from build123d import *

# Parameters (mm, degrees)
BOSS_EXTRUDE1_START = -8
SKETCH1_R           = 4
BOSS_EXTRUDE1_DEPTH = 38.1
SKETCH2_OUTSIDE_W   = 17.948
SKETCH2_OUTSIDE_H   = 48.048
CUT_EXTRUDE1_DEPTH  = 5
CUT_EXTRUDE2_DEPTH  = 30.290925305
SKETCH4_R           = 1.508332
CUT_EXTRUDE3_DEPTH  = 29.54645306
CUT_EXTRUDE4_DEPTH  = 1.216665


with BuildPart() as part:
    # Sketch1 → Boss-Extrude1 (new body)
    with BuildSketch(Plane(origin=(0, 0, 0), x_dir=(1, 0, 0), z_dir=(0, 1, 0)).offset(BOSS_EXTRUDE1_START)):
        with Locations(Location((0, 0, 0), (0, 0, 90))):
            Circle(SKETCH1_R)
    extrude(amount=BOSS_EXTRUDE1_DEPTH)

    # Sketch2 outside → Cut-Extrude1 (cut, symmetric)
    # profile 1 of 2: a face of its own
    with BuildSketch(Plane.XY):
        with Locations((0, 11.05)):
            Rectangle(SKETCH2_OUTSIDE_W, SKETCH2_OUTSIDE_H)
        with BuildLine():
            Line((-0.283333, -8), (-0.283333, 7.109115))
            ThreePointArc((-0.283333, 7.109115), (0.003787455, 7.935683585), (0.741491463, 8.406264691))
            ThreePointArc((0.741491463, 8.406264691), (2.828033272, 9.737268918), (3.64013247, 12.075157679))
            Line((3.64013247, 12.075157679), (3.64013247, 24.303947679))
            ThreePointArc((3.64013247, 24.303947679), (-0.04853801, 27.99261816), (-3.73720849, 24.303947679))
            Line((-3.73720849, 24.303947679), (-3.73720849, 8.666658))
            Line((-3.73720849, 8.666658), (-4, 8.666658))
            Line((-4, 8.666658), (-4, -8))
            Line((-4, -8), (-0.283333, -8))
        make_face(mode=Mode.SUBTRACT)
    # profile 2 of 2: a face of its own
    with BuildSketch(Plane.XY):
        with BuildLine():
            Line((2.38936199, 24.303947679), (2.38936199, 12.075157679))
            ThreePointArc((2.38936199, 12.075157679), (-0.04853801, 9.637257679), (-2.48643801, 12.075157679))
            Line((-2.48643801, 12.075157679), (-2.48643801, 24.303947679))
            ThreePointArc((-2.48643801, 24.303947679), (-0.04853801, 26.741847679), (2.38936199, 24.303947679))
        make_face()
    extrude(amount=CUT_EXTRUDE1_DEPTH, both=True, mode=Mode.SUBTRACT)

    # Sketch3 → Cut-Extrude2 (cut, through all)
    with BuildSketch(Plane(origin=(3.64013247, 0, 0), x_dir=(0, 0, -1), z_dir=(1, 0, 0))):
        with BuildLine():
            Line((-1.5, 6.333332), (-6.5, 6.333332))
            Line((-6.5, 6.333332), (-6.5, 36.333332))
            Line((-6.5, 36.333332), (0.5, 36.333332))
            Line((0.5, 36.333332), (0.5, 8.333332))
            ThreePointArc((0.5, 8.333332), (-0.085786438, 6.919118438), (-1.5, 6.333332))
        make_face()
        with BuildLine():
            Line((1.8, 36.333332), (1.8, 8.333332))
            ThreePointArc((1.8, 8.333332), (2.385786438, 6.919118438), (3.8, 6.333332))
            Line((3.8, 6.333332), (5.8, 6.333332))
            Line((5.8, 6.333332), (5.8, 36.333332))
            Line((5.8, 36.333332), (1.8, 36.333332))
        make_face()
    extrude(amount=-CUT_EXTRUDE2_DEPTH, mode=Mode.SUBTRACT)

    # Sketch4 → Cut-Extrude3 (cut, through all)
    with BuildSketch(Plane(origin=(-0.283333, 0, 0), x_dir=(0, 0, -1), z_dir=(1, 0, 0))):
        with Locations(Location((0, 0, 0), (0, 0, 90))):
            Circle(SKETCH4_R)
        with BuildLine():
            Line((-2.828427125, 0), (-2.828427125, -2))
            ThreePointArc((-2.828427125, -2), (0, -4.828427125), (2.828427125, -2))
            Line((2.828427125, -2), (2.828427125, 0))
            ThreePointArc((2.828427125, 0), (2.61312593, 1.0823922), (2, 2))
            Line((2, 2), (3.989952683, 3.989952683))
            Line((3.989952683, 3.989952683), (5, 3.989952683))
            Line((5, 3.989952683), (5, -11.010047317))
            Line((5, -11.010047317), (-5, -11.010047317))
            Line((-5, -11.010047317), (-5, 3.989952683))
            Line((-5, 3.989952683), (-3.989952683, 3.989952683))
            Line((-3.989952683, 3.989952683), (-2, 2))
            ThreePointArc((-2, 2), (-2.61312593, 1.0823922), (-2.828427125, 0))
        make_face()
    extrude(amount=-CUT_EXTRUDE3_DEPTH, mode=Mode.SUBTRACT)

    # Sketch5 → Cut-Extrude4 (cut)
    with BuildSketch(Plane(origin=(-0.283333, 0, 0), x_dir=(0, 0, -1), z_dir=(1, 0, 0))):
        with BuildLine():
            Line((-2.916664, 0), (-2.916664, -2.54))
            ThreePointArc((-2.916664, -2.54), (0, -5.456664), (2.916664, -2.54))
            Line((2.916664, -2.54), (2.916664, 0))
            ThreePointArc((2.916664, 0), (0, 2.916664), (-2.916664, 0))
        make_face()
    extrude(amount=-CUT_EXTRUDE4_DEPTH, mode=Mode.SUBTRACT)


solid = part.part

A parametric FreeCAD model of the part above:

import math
import FreeCAD as App
import Part
import Sketcher

V = App.Vector

doc = App.newDocument("Part")
body = doc.addObject("PartDesign::Body", "Body")

sketch1 = doc.addObject("Sketcher::SketchObject", "Sketch")
body.addObject(sketch1)
sketch1.AttachmentSupport = (doc.XZ_Plane, [""])
sketch1.MapMode = "FlatFace"
sketch1.AttachmentOffset = App.Placement(V(0, 0, 8), App.Rotation())
sketch1.addGeometry(Part.Circle(V(0, 0, 0), V(0, 0, 1), 4), False)
sketch1.addConstraint([
    Sketcher.Constraint("Coincident", 0, 3, -1, 1),
    Sketcher.Constraint("Diameter", 0, 8.0),
])
pad1 = doc.addObject("PartDesign::Pad", "Pad")
body.addObject(pad1)
pad1.Profile = sketch1
pad1.Length = 38.1
pad1.Reversed = True

sketch2 = doc.addObject("Sketcher::SketchObject", "Sketch001")
body.addObject(sketch2)
sketch2.AttachmentSupport = (doc.XY_Plane, [""])
sketch2.MapMode = "FlatFace"
sketch2.addGeometry([
    Part.LineSegment(V(-8.974, 35.074, 0), V(-8.974, -12.974, 0)),
    Part.LineSegment(V(-8.974, -12.974, 0), V(8.974, -12.974, 0)),
    Part.LineSegment(V(8.974, -12.974, 0), V(8.974, 35.074, 0)),
    Part.LineSegment(V(8.974, 35.074, 0), V(-8.974, 35.074, 0)),
    Part.LineSegment(V(-0.283333, 7.109115, 0), V(-0.283333, -8, 0)),
    Part.LineSegment(V(-0.283333, -8, 0), V(-4, -8, 0)),
    Part.LineSegment(V(-4, -8, 0), V(-4, 8.666658, 0)),
    Part.LineSegment(V(-4, 8.666658, 0), V(-3.737208, 8.666658, 0)),
    Part.LineSegment(V(-3.737208, 8.666658, 0), V(-3.737208, 24.303948, 0)),
    Part.ArcOfCircle(Part.Circle(V(-0.048538, 24.303948, 0), V(0, 0, 1), 3.68867), math.radians(0), math.radians(180)),
    Part.LineSegment(V(3.640132, 24.303948, 0), V(3.640132, 12.075158, 0)),
    Part.ArcOfCircle(Part.Circle(V(-0.1311, 12.075158, 0), V(0, 0, 1), 3.771232), math.radians(-76.621616), math.radians(0)),
    Part.ArcOfCircle(Part.Circle(V(1.049999, 7.109115, 0), V(0, 0, 1), 1.333332), math.radians(103.378384), math.radians(180)),
    Part.LineSegment(V(2.389362, 12.075158, 0), V(2.389362, 24.303948, 0)),
    Part.ArcOfCircle(Part.Circle(V(-0.048538, 24.303948, 0), V(0, 0, 1), 2.4379), math.radians(0), math.radians(180)),
    Part.LineSegment(V(-2.486438, 24.303948, 0), V(-2.486438, 12.075158, 0)),
    Part.ArcOfCircle(Part.Circle(V(-0.048538, 12.075158, 0), V(0, 0, 1), 2.4379), math.radians(180), math.radians(360)),
], False)
sketch2.addConstraint([
    Sketcher.Constraint("Coincident", 0, 2, 1, 1),
    Sketcher.Constraint("Coincident", 1, 2, 2, 1),
    Sketcher.Constraint("Coincident", 2, 2, 3, 1),
    Sketcher.Constraint("Coincident", 3, 2, 0, 1),
    Sketcher.Constraint("Coincident", 4, 2, 5, 1),
    Sketcher.Constraint("Coincident", 5, 2, 6, 1),
    Sketcher.Constraint("Coincident", 6, 2, 7, 1),
    Sketcher.Constraint("Coincident", 7, 2, 8, 1),
    Sketcher.Constraint("Tangent", 8, 2, 9, 2),
    Sketcher.Constraint("Tangent", 9, 1, 10, 1),
    Sketcher.Constraint("Tangent", 10, 2, 11, 2),
    Sketcher.Constraint("Tangent", 11, 1, 12, 1),
    Sketcher.Constraint("Tangent", 12, 2, 4, 1),
    Sketcher.Constraint("Tangent", 13, 2, 14, 1),
    Sketcher.Constraint("Tangent", 14, 2, 15, 1),
    Sketcher.Constraint("Tangent", 15, 2, 16, 1),
    Sketcher.Constraint("Tangent", 16, 2, 13, 1),
    Sketcher.Constraint("Vertical", 0),
    Sketcher.Constraint("Horizontal", 1),
    Sketcher.Constraint("Vertical", 2),
    Sketcher.Constraint("Horizontal", 3),
    Sketcher.Constraint("Vertical", 4),
    Sketcher.Constraint("Horizontal", 5),
    Sketcher.Constraint("Vertical", 6),
    Sketcher.Constraint("Horizontal", 7),
    Sketcher.Constraint("Vertical", 8),
    Sketcher.Constraint("Vertical", 10),
    Sketcher.Constraint("Vertical", 13),
    Sketcher.Constraint("Vertical", 15),
    Sketcher.Constraint("Coincident", 14, 3, 9, 3),
    Sketcher.Constraint("Horizontal", 11, 3, 16, 3),
    Sketcher.Constraint("DistanceY", 4, 2, -1, 1, 8.0),
    Sketcher.Constraint("DistanceX", 5, 2, -1, 1, 4.0),
    Sketcher.Constraint("Radius", 14, 2.4379),
    Sketcher.Constraint("DistanceX", 1, 1, 1, 2, 17.948),
    Sketcher.Constraint("DistanceY", 0, 2, 0, 1, 48.048),
    Sketcher.Constraint("DistanceX", -1, 1, 12, 3, 1.049999),
    Sketcher.Constraint("Radius", 9, 3.68867),
    Sketcher.Constraint("Radius", 11, 3.771232),
    Sketcher.Constraint("Radius", 12, 1.333332),
    Sketcher.Constraint("DistanceX", 0, 2, -1, 1, 8.974),
    Sketcher.Constraint("DistanceY", 0, 2, -1, 1, 12.974),
    Sketcher.Constraint("DistanceX", 7, 1, 7, 2, 0.262792),
    Sketcher.Constraint("DistanceY", 8, 1, 8, 2, 15.63729),
    Sketcher.Constraint("DistanceY", 10, 2, 10, 1, 12.22879),
    Sketcher.Constraint("DistanceY", 4, 2, 4, 1, 15.109115),
])
pocket1 = doc.addObject("PartDesign::Pocket", "Pocket")
body.addObject(pocket1)
pocket1.Profile = sketch2
pocket1.Length = 10
pocket1.Midplane = True

sketch3 = doc.addObject("Sketcher::SketchObject", "Sketch002")
body.addObject(sketch3)
sketch3.AttachmentSupport = (doc.YZ_Plane, [""])
sketch3.MapMode = "FlatFace"
sketch3.AttachmentOffset = App.Placement(V(0, 0, 3.640132), App.Rotation())
sketch3.addGeometry([
    Part.LineSegment(V(6.333332, 6.5, 0), V(6.333332, 1.5, 0)),
    Part.ArcOfCircle(Part.Circle(V(8.333332, 1.5, 0), V(0, 0, 1), 2), math.radians(-180), math.radians(-90)),
    Part.LineSegment(V(8.333332, -0.5, 0), V(36.333332, -0.5, 0)),
    Part.LineSegment(V(36.333332, -0.5, 0), V(36.333332, 6.5, 0)),
    Part.LineSegment(V(36.333332, 6.5, 0), V(6.333332, 6.5, 0)),
    Part.LineSegment(V(36.333332, -1.8, 0), V(8.333332, -1.8, 0)),
    Part.ArcOfCircle(Part.Circle(V(8.333332, -3.8, 0), V(0, 0, 1), 2), math.radians(90), math.radians(180)),
    Part.LineSegment(V(6.333332, -3.8, 0), V(6.333332, -5.8, 0)),
    Part.LineSegment(V(6.333332, -5.8, 0), V(36.333332, -5.8, 0)),
    Part.LineSegment(V(36.333332, -5.8, 0), V(36.333332, -1.8, 0)),
], False)
sketch3.addConstraint([
    Sketcher.Constraint("Tangent", 0, 2, 1, 1),
    Sketcher.Constraint("Tangent", 1, 2, 2, 1),
    Sketcher.Constraint("Coincident", 2, 2, 3, 1),
    Sketcher.Constraint("Coincident", 3, 2, 4, 1),
    Sketcher.Constraint("Coincident", 4, 2, 0, 1),
    Sketcher.Constraint("Tangent", 5, 2, 6, 1),
    Sketcher.Constraint("Tangent", 6, 2, 7, 1),
    Sketcher.Constraint("Coincident", 7, 2, 8, 1),
    Sketcher.Constraint("Coincident", 8, 2, 9, 1),
    Sketcher.Constraint("Coincident", 9, 2, 5, 1),
    Sketcher.Constraint("Vertical", 0),
    Sketcher.Constraint("Horizontal", 2),
    Sketcher.Constraint("Vertical", 3),
    Sketcher.Constraint("Horizontal", 4),
    Sketcher.Constraint("Horizontal", 5),
    Sketcher.Constraint("Vertical", 7),
    Sketcher.Constraint("Horizontal", 8),
    Sketcher.Constraint("Vertical", 9),
    Sketcher.Constraint("Equal", 1, 6),
    Sketcher.Constraint("Vertical", 1, 3, 6, 3),
    Sketcher.Constraint("Vertical", 3, 2, 8, 2),
    Sketcher.Constraint("Radius", 1, 2.0),
    Sketcher.Constraint("DistanceX", 2, 1, 2, 2, 28.0),
    Sketcher.Constraint("DistanceY", 0, 2, 0, 1, 5.0),
    Sketcher.Constraint("DistanceY", 7, 2, 7, 1, 2.0),
    Sketcher.Constraint("DistanceY", -1, 1, 1, 3, 1.5),
    Sketcher.Constraint("DistanceY", 6, 3, -1, 1, 3.8),
    Sketcher.Constraint("DistanceX", -1, 1, 1, 3, 8.333332),
])
pocket2 = doc.addObject("PartDesign::Pocket", "Pocket001")
body.addObject(pocket2)
pocket2.Profile = sketch3
pocket2.Type = "ThroughAll"

sketch4 = doc.addObject("Sketcher::SketchObject", "Sketch003")
body.addObject(sketch4)
sketch4.AttachmentSupport = (doc.YZ_Plane, [""])
sketch4.MapMode = "FlatFace"
sketch4.AttachmentOffset = App.Placement(V(0, 0, -0.283333), App.Rotation())
sketch4.addGeometry([
    Part.Circle(V(0, 0, 0), V(0, 0, 1), 1.508332),
    Part.LineSegment(V(-2, 2.828427, 0), V(0, 2.828427, 0)),
    Part.ArcOfCircle(Part.Circle(V(0, 0, 0), V(0, 0, 1), 2.828427), math.radians(45), math.radians(90)),
    Part.LineSegment(V(2, 2, 0), V(3.989953, 3.989953, 0)),
    Part.LineSegment(V(3.989953, 3.989953, 0), V(3.989953, 5, 0)),
    Part.LineSegment(V(3.989953, 5, 0), V(-11.010047, 5, 0)),
    Part.LineSegment(V(-11.010047, 5, 0), V(-11.010047, -5, 0)),
    Part.LineSegment(V(-11.010047, -5, 0), V(3.989953, -5, 0)),
    Part.LineSegment(V(3.989953, -5, 0), V(3.989953, -3.989953, 0)),
    Part.LineSegment(V(3.989953, -3.989953, 0), V(2, -2, 0)),
    Part.ArcOfCircle(Part.Circle(V(0, 0, 0), V(0, 0, 1), 2.828427), math.radians(-90), math.radians(-45)),
    Part.LineSegment(V(0, -2.828427, 0), V(-2, -2.828427, 0)),
    Part.ArcOfCircle(Part.Circle(V(-2, 0, 0), V(0, 0, 1), 2.828427), math.radians(90), math.radians(270)),
], False)
sketch4.addConstraint([
    Sketcher.Constraint("Tangent", 1, 2, 2, 2),
    Sketcher.Constraint("Coincident", 2, 1, 3, 1),
    Sketcher.Constraint("Coincident", 3, 2, 4, 1),
    Sketcher.Constraint("Coincident", 4, 2, 5, 1),
    Sketcher.Constraint("Coincident", 5, 2, 6, 1),
    Sketcher.Constraint("Coincident", 6, 2, 7, 1),
    Sketcher.Constraint("Coincident", 7, 2, 8, 1),
    Sketcher.Constraint("Coincident", 8, 2, 9, 1),
    Sketcher.Constraint("Coincident", 9, 2, 10, 2),
    Sketcher.Constraint("Tangent", 10, 1, 11, 1),
    Sketcher.Constraint("Tangent", 11, 2, 12, 2),
    Sketcher.Constraint("Tangent", 12, 1, 1, 1),
    Sketcher.Constraint("Horizontal", 1),
    Sketcher.Constraint("Vertical", 4),
    Sketcher.Constraint("Horizontal", 5),
    Sketcher.Constraint("Vertical", 6),
    Sketcher.Constraint("Horizontal", 7),
    Sketcher.Constraint("Vertical", 8),
    Sketcher.Constraint("Horizontal", 11),
    Sketcher.Constraint("Coincident", 0, 3, -1, 1),
    Sketcher.Constraint("Coincident", 2, 3, -1, 1),
    Sketcher.Constraint("Coincident", 10, 3, -1, 1),
    Sketcher.Constraint("Equal", 2, 10),
    Sketcher.Constraint("Symmetric", 4, 2, 7, 2, -1),
    Sketcher.Constraint("Perpendicular", 3, 9),
    Sketcher.Constraint("Vertical", 2, 1, 9, 2),
    Sketcher.Constraint("Equal", 4, 8),
    Sketcher.Constraint("DistanceX", 1, 1, 1, 2, 2.0),
    Sketcher.Constraint("DistanceX", 5, 2, 5, 1, 15.0),
    Sketcher.Constraint("DistanceY", 6, 2, 6, 1, 10.0),
    Sketcher.Constraint("DistanceX", -1, 1, 2, 1, 2.0),
    Sketcher.Constraint("DistanceY", -1, 1, 2, 1, 2.0),
    Sketcher.Constraint("Diameter", 0, 3.016664),
    Sketcher.Constraint("Distance", 3, 2.814218),
])
pocket3 = doc.addObject("PartDesign::Pocket", "Pocket002")
body.addObject(pocket3)
pocket3.Profile = sketch4
pocket3.Type = "ThroughAll"

sketch5 = doc.addObject("Sketcher::SketchObject", "Sketch004")
body.addObject(sketch5)
sketch5.AttachmentSupport = (doc.YZ_Plane, [""])
sketch5.MapMode = "FlatFace"
sketch5.AttachmentOffset = App.Placement(V(0, 0, -0.283333), App.Rotation())
sketch5.addGeometry([
    Part.LineSegment(V(0, 2.916664, 0), V(-2.54, 2.916664, 0)),
    Part.ArcOfCircle(Part.Circle(V(-2.54, 0, 0), V(0, 0, 1), 2.916664), math.radians(90), math.radians(270)),
    Part.LineSegment(V(-2.54, -2.916664, 0), V(0, -2.916664, 0)),
    Part.ArcOfCircle(Part.Circle(V(0, 0, 0), V(0, 0, 1), 2.916664), math.radians(-90), math.radians(90)),
], False)
sketch5.addConstraint([
    Sketcher.Constraint("Tangent", 0, 2, 1, 1),
    Sketcher.Constraint("Tangent", 1, 2, 2, 1),
    Sketcher.Constraint("Tangent", 2, 2, 3, 1),
    Sketcher.Constraint("Tangent", 3, 2, 0, 1),
    Sketcher.Constraint("Horizontal", 0),
    Sketcher.Constraint("Horizontal", 2),
    Sketcher.Constraint("Coincident", 3, 3, -1, 1),
    Sketcher.Constraint("DistanceX", 0, 2, 0, 1, 2.54),
    Sketcher.Constraint("Radius", 1, 2.916664),
])
pocket4 = doc.addObject("PartDesign::Pocket", "Pocket003")
body.addObject(pocket4)
pocket4.Profile = sketch5
pocket4.Length = 1.216665

doc.recompute()
